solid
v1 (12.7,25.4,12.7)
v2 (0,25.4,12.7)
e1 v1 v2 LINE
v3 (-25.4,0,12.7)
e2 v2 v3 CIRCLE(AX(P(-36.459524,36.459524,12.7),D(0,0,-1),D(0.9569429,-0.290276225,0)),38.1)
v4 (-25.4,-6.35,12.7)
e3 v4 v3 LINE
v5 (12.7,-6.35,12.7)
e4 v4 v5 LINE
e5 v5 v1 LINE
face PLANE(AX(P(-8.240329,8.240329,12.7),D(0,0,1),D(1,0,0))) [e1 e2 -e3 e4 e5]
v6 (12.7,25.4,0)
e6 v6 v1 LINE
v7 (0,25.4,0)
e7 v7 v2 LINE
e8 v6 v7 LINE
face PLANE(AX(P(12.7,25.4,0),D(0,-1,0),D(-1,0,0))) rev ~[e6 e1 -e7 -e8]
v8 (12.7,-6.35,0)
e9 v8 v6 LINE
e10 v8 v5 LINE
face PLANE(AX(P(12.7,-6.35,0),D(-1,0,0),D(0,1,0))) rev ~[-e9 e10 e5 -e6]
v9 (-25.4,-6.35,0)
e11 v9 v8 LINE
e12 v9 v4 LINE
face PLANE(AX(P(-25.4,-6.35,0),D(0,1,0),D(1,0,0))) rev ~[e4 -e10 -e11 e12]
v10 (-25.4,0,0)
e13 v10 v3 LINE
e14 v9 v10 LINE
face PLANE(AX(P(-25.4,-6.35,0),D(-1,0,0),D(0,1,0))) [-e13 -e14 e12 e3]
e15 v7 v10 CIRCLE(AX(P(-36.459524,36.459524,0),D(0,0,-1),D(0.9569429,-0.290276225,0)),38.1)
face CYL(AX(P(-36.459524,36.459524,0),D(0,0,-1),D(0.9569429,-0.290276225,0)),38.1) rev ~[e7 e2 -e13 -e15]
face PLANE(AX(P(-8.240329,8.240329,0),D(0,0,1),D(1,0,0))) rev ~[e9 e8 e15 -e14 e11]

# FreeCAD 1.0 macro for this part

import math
import FreeCAD as App
import Part
import Sketcher
Q = App.Units.Quantity

doc = App.newDocument("Part")
body = doc.addObject("PartDesign::Body", "Body")

sketch1 = body.newObject("Sketcher::SketchObject", "Sketch")
sketch1.AttachmentSupport = (doc.getObject("XY_Plane"), [""])
sketch1.MapMode = "FlatFace"
sketch1.addGeometry([
    Part.ArcOfCircle(Part.Circle(App.Vector(-36.459524, 36.459524, 0), App.Vector(0, 0, 1), 38.1), math.radians(-73.125506), math.radians(-16.874494)),
    Part.LineSegment(App.Vector(-25.4, 0, 0), App.Vector(-25.4, -6.35, 0)),
    Part.LineSegment(App.Vector(-25.4, -6.35, 0), App.Vector(12.7, -6.35, 0)),
    Part.LineSegment(App.Vector(12.7, -6.35, 0), App.Vector(12.7, 25.4, 0)),
    Part.LineSegment(App.Vector(12.7, 25.4, 0), App.Vector(0, 25.4, 0)),
], False)
sketch1.addConstraint([
    Sketcher.Constraint("Coincident", 0, 1, 1, 1),
    Sketcher.Constraint("Coincident", 1, 2, 2, 1),
    Sketcher.Constraint("Coincident", 2, 2, 3, 1),
    Sketcher.Constraint("Coincident", 3, 2, 4, 1),
    Sketcher.Constraint("Coincident", 4, 2, 0, 2),
    Sketcher.Constraint("Vertical", 1),
    Sketcher.Constraint("Horizontal", 2),
    Sketcher.Constraint("Vertical", 3),
    Sketcher.Constraint("Horizontal", 4),
    Sketcher.Constraint("PointOnObject", 0, 1, -1),
    Sketcher.Constraint("PointOnObject", 4, 2, -2),
    Sketcher.Constraint("Radius", 0, Q("1.5 in")),
    Sketcher.Constraint("DistanceX", 2, 1, 2, 2, Q("1.5 in")),
    Sketcher.Constraint("DistanceX", 4, 2, 4, 1, Q("0.5 in")),
    Sketcher.Constraint("DistanceY", -1, 1, 3, 2, Q("1 in")),
    Sketcher.Constraint("DistanceY", 1, 2, 1, 1, Q("0.25 in")),
])
pad1 = body.newObject("PartDesign::Pad", "Pad")
pad1.Profile = sketch1
pad1.Length = Q("0.5 in")

doc.recompute()
